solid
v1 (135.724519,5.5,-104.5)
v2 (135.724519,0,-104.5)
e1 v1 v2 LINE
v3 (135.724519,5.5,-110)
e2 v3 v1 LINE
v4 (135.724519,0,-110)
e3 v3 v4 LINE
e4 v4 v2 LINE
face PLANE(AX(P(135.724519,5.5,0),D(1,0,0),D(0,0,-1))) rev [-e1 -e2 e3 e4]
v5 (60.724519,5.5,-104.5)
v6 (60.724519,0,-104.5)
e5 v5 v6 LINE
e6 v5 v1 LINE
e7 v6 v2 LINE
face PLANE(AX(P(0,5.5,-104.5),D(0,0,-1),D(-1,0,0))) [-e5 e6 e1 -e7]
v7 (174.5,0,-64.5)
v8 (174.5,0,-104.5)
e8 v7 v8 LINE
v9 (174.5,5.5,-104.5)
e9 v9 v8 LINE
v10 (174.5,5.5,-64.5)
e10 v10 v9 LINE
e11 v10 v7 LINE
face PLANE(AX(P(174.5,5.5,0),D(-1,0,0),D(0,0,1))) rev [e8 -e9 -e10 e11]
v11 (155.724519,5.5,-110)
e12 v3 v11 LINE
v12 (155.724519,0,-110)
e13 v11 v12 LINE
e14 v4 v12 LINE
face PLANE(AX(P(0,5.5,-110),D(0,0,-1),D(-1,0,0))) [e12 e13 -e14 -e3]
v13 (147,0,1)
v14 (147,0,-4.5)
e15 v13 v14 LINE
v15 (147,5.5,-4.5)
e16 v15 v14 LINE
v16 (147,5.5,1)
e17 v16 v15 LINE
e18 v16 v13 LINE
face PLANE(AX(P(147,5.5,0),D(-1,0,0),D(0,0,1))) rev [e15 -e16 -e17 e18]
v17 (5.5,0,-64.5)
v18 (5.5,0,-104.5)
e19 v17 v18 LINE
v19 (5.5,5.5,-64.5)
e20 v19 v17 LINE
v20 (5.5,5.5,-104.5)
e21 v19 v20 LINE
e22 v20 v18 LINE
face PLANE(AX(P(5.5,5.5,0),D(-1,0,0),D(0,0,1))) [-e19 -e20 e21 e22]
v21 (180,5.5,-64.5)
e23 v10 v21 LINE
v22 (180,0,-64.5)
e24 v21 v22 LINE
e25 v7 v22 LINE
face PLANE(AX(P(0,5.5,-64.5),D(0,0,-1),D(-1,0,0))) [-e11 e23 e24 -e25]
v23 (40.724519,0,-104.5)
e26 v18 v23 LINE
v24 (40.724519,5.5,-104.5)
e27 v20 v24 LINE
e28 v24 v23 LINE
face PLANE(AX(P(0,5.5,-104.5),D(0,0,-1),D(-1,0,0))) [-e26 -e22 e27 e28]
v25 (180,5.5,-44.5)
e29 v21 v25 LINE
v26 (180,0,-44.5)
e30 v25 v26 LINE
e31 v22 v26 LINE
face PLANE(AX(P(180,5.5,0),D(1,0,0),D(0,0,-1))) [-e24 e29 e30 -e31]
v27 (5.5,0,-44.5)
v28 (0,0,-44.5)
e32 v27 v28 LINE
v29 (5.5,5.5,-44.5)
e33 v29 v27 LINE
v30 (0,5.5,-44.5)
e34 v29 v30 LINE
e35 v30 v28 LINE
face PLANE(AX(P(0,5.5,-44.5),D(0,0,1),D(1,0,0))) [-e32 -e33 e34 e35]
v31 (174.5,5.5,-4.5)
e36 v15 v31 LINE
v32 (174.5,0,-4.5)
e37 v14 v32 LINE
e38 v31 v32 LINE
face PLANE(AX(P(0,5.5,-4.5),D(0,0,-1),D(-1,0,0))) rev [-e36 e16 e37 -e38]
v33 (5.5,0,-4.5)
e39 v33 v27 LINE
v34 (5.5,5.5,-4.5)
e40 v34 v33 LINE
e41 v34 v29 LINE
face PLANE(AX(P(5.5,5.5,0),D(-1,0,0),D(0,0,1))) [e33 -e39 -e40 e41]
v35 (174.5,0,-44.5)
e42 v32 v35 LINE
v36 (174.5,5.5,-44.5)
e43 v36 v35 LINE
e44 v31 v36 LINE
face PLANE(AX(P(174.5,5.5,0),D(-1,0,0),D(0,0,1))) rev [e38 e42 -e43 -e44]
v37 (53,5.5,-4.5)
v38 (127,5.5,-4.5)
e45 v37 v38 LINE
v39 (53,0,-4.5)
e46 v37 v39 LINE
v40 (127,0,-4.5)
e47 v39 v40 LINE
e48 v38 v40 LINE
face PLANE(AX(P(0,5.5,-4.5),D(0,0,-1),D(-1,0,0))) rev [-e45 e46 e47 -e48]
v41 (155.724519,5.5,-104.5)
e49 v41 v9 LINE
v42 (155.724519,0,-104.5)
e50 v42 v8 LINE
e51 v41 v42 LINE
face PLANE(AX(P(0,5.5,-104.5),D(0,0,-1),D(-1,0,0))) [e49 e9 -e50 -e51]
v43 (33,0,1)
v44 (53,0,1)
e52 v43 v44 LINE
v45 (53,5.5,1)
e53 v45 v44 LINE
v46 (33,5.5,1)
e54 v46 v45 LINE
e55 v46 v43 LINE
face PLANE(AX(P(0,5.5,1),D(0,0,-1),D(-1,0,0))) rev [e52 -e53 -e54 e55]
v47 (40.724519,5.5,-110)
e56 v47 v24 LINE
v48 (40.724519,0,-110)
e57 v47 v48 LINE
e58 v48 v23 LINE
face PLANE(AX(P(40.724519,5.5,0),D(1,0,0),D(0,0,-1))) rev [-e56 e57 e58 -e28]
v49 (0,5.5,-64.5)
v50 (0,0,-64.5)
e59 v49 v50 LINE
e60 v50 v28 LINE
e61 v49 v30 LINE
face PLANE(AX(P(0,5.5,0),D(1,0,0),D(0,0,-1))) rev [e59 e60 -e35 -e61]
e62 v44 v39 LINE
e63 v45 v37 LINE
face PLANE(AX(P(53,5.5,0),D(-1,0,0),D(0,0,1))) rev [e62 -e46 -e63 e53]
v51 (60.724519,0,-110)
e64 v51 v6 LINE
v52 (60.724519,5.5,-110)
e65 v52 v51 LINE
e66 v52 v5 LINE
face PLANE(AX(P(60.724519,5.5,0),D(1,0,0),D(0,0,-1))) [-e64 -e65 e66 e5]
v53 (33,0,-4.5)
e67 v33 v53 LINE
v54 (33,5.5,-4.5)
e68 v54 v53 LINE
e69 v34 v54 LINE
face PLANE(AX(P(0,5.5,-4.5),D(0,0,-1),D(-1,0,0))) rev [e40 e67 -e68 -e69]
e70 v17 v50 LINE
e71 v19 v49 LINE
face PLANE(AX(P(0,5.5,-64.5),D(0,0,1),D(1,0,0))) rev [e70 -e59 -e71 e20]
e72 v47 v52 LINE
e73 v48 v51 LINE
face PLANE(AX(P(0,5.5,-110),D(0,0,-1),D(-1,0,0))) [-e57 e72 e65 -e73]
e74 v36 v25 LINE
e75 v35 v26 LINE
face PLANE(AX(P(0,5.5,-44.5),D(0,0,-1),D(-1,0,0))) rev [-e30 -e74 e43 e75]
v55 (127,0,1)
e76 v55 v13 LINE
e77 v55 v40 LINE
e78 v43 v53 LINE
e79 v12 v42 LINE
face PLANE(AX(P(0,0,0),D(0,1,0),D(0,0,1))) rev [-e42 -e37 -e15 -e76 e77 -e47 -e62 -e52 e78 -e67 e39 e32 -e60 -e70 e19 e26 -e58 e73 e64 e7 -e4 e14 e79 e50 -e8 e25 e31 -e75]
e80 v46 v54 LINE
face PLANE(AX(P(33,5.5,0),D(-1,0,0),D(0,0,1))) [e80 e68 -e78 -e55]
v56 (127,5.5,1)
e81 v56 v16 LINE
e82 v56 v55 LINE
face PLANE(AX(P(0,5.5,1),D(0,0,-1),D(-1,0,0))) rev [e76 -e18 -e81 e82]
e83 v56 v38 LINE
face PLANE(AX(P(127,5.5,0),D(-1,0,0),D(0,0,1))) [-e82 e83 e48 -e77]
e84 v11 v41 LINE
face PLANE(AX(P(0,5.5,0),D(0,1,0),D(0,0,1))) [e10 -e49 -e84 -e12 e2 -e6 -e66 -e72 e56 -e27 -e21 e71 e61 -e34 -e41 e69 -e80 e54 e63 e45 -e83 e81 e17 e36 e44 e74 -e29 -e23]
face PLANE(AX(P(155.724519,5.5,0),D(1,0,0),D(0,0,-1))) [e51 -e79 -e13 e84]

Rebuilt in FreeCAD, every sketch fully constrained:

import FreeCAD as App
import Part
import Sketcher
from FreeCAD import Vector
Q = App.Units.Quantity

doc = App.newDocument("Part")
params = doc.addObject("Spreadsheet::Sheet", "Params")
for row, (alias, value) in enumerate([
    ("sketch1_width", "20 mm"),
    ("sketch1_width2", "74 mm"),
    ("sketch1_width3", "75 mm"),
    ("sketch1_height", "40 mm"),
    ("sketch1_width4", "5.5 mm"),
    ("pad1_length", "5.5 mm"),
], start=1):
    params.set(f"A{row}", alias)
    params.set(f"B{row}", "=" + value)
    params.setAlias(f"B{row}", alias)

body = doc.addObject("PartDesign::Body", "Body")

# Sketch on XZ plane
sketch1 = body.newObject("Sketcher::SketchObject", "Sketch")
sketch1.AttachmentSupport = (doc.getObject("XZ_Plane"), [""])
sketch1.MapMode = "FlatFace"
sketch1.addGeometry(Part.LineSegment(Vector(41, -104, 0), Vector(6, -104, 0)), False)
sketch1.addGeometry(Part.LineSegment(Vector(6, -104, 0), Vector(6, -64, 0)), False)
sketch1.addGeometry(Part.LineSegment(Vector(6, -64, 0), Vector(0, -64, 0)), False)
sketch1.addGeometry(Part.LineSegment(Vector(0, -64, 0), Vector(0, -44, 0)), False)
sketch1.addGeometry(Part.LineSegment(Vector(0, -44, 0), Vector(6, -44, 0)), False)
sketch1.addGeometry(Part.LineSegment(Vector(6, -44, 0), Vector(6, -4, 0)), False)
sketch1.addGeometry(Part.LineSegment(Vector(6, -4, 0), Vector(33, -4, 0)), False)
sketch1.addGeometry(Part.LineSegment(Vector(33, -4, 0), Vector(33, 1, 0)), False)
sketch1.addGeometry(Part.LineSegment(Vector(33, 1, 0), Vector(53, 1, 0)), False)
sketch1.addGeometry(Part.LineSegment(Vector(53, 1, 0), Vector(53, -4, 0)), False)
sketch1.addGeometry(Part.LineSegment(Vector(53, -4, 0), Vector(127, -4, 0)), False)
sketch1.addGeometry(Part.LineSegment(Vector(127, -4, 0), Vector(127, 1, 0)), False)
sketch1.addGeometry(Part.LineSegment(Vector(127, 1, 0), Vector(147, 1, 0)), False)
sketch1.addGeometry(Part.LineSegment(Vector(147, 1, 0), Vector(147, -4, 0)), False)
sketch1.addGeometry(Part.LineSegment(Vector(147, -4, 0), Vector(174, -4, 0)), False)
sketch1.addGeometry(Part.LineSegment(Vector(174, -4, 0), Vector(174, -44, 0)), False)
sketch1.addGeometry(Part.LineSegment(Vector(174, -44, 0), Vector(180, -44, 0)), False)
sketch1.addGeometry(Part.LineSegment(Vector(180, -44, 0), Vector(180, -64, 0)), False)
sketch1.addGeometry(Part.LineSegment(Vector(180, -64, 0), Vector(174, -64, 0)), False)
sketch1.addGeometry(Part.LineSegment(Vector(174, -64, 0), Vector(174, -104, 0)), False)
sketch1.addGeometry(Part.LineSegment(Vector(174, -104, 0), Vector(156, -104, 0)), False)
sketch1.addGeometry(Part.LineSegment(Vector(156, -104, 0), Vector(156, -110, 0)), False)
sketch1.addGeometry(Part.LineSegment(Vector(156, -110, 0), Vector(136, -110, 0)), False)
sketch1.addGeometry(Part.LineSegment(Vector(136, -110, 0), Vector(136, -104, 0)), False)
sketch1.addGeometry(Part.LineSegment(Vector(136, -104, 0), Vector(61, -104, 0)), False)
sketch1.addGeometry(Part.LineSegment(Vector(61, -104, 0), Vector(61, -110, 0)), False)
sketch1.addGeometry(Part.LineSegment(Vector(61, -110, 0), Vector(41, -110, 0)), False)
sketch1.addGeometry(Part.LineSegment(Vector(41, -110, 0), Vector(41, -104, 0)), False)
sketch1.addConstraint(Sketcher.Constraint("Coincident", 0, 2, 1, 1))
sketch1.addConstraint(Sketcher.Constraint("Coincident", 1, 2, 2, 1))
sketch1.addConstraint(Sketcher.Constraint("Coincident", 2, 2, 3, 1))
sketch1.addConstraint(Sketcher.Constraint("Coincident", 3, 2, 4, 1))
sketch1.addConstraint(Sketcher.Constraint("Coincident", 4, 2, 5, 1))
sketch1.addConstraint(Sketcher.Constraint("Coincident", 5, 2, 6, 1))
sketch1.addConstraint(Sketcher.Constraint("Coincident", 6, 2, 7, 1))
sketch1.addConstraint(Sketcher.Constraint("Coincident", 7, 2, 8, 1))
sketch1.addConstraint(Sketcher.Constraint("Coincident", 8, 2, 9, 1))
sketch1.addConstraint(Sketcher.Constraint("Coincident", 9, 2, 10, 1))
sketch1.addConstraint(Sketcher.Constraint("Coincident", 10, 2, 11, 1))
sketch1.addConstraint(Sketcher.Constraint("Coincident", 11, 2, 12, 1))
sketch1.addConstraint(Sketcher.Constraint("Coincident", 12, 2, 13, 1))
sketch1.addConstraint(Sketcher.Constraint("Coincident", 13, 2, 14, 1))
sketch1.addConstraint(Sketcher.Constraint("Coincident", 14, 2, 15, 1))
sketch1.addConstraint(Sketcher.Constraint("Coincident", 15, 2, 16, 1))
sketch1.addConstraint(Sketcher.Constraint("Coincident", 16, 2, 17, 1))
sketch1.addConstraint(Sketcher.Constraint("Coincident", 17, 2, 18, 1))
sketch1.addConstraint(Sketcher.Constraint("Coincident", 18, 2, 19, 1))
sketch1.addConstraint(Sketcher.Constraint("Coincident", 19, 2, 20, 1))
sketch1.addConstraint(Sketcher.Constraint("Coincident", 20, 2, 21, 1))
sketch1.addConstraint(Sketcher.Constraint("Coincident", 21, 2, 22, 1))
sketch1.addConstraint(Sketcher.Constraint("Coincident", 22, 2, 23, 1))
sketch1.addConstraint(Sketcher.Constraint("Coincident", 23, 2, 24, 1))
sketch1.addConstraint(Sketcher.Constraint("Coincident", 24, 2, 25, 1))
sketch1.addConstraint(Sketcher.Constraint("Coincident", 25, 2, 26, 1))
sketch1.addConstraint(Sketcher.Constraint("Coincident", 26, 2, 27, 1))
sketch1.addConstraint(Sketcher.Constraint("Coincident", 27, 2, 0, 1))
sketch1.addConstraint(Sketcher.Constraint("Horizontal", 0))
sketch1.addConstraint(Sketcher.Constraint("Vertical", 1))
sketch1.addConstraint(Sketcher.Constraint("Horizontal", 2))
sketch1.addConstraint(Sketcher.Constraint("Vertical", 3))
sketch1.addConstraint(Sketcher.Constraint("Horizontal", 4))
sketch1.addConstraint(Sketcher.Constraint("Vertical", 5))
sketch1.addConstraint(Sketcher.Constraint("Horizontal", 6))
sketch1.addConstraint(Sketcher.Constraint("Vertical", 7))
sketch1.addConstraint(Sketcher.Constraint("Horizontal", 8))
sketch1.addConstraint(Sketcher.Constraint("Vertical", 9))
sketch1.addConstraint(Sketcher.Constraint("Horizontal", 10))
sketch1.addConstraint(Sketcher.Constraint("Vertical", 11))
sketch1.addConstraint(Sketcher.Constraint("Horizontal", 12))
sketch1.addConstraint(Sketcher.Constraint("Vertical", 13))
sketch1.addConstraint(Sketcher.Constraint("Horizontal", 14))
sketch1.addConstraint(Sketcher.Constraint("Vertical", 15))
sketch1.addConstraint(Sketcher.Constraint("Horizontal", 16))
sketch1.addConstraint(Sketcher.Constraint("Vertical", 17))
sketch1.addConstraint(Sketcher.Constraint("Horizontal", 18))
sketch1.addConstraint(Sketcher.Constraint("Vertical", 19))
sketch1.addConstraint(Sketcher.Constraint("Horizontal", 20))
sketch1.addConstraint(Sketcher.Constraint("Vertical", 21))
sketch1.addConstraint(Sketcher.Constraint("Horizontal", 22))
sketch1.addConstraint(Sketcher.Constraint("Vertical", 23))
sketch1.addConstraint(Sketcher.Constraint("Horizontal", 24))
sketch1.addConstraint(Sketcher.Constraint("Vertical", 25))
sketch1.addConstraint(Sketcher.Constraint("Horizontal", 26))
sketch1.addConstraint(Sketcher.Constraint("Vertical", 27))
sketch1.addConstraint(Sketcher.Constraint("PointOnObject", 2, 2, -2))
sketch1.addConstraint(Sketcher.Constraint("Horizontal", 6, 2, 9, 2))
sketch1.addConstraint(Sketcher.Constraint("Horizontal", 8, 2, 11, 2))
sketch1.addConstraint(Sketcher.Constraint("Horizontal", 10, 2, 13, 2))
sketch1.addConstraint(Sketcher.Constraint("Horizontal", 4, 2, 15, 2))
sketch1.addConstraint(Sketcher.Constraint("Horizontal", 2, 2, 17, 2))
sketch1.addConstraint(Sketcher.Constraint("Horizontal", 0, 2, 19, 2))
sketch1.addConstraint(Sketcher.Constraint("Horizontal", 20, 2, 23, 2))
sketch1.addConstraint(Sketcher.Constraint("Horizontal", 22, 2, 25, 2))
sketch1.addConstraint(Sketcher.Constraint("Vertical", 1, 2, 4, 2))
sketch1.addConstraint(Sketcher.Constraint("Vertical", 15, 2, 18, 2))
sketch1.addConstraint(Sketcher.Constraint("Equal", 8, 12))
sketch1.addConstraint(Sketcher.Constraint("Equal", 6, 14))
sketch1.addConstraint(Sketcher.Constraint("Equal", 4, 16))
sketch1.addConstraint(Sketcher.Constraint("Equal", 12, 22))
sketch1.addConstraint(Sketcher.Constraint("Equal", 22, 26))
sketch1.addConstraint(Sketcher.Constraint("Equal", 26, 3))
sketch1.addConstraint(Sketcher.Constraint("Equal", 1, 5))
sketch1.addConstraint(Sketcher.Constraint("Equal", 18, 7))
sketch1.addConstraint(Sketcher.Constraint("Equal", 13, 21))
sketch1.addConstraint(Sketcher.Constraint("DistanceX", 8, 1, 8, 2, Q("20 mm")))
sketch1.addConstraint(Sketcher.Constraint("DistanceX", 10, 1, 10, 2, Q("74 mm")))
sketch1.addConstraint(Sketcher.Constraint("DistanceX", 24, 2, 24, 1, Q("75 mm")))
sketch1.addConstraint(Sketcher.Constraint("DistanceY", 1, 1, 1, 2, Q("40 mm")))
sketch1.addConstraint(Sketcher.Constraint("DistanceX", 2, 2, 2, 1, Q("5.5 mm")))
sketch1.addConstraint(Sketcher.Constraint("DistanceX", 6, 1, 6, 2, Q("27.5 mm")))
sketch1.addConstraint(Sketcher.Constraint("DistanceY", -1, 1, 7, 2, Q("1 mm")))
sketch1.addConstraint(Sketcher.Constraint("DistanceX", 0, 2, 0, 1, Q("35.224519 mm")))
sketch1.setExpression("Constraints[76]", "Params.sketch1_width")
sketch1.setExpression("Constraints[77]", "Params.sketch1_width2")
sketch1.setExpression("Constraints[78]", "Params.sketch1_width3")
sketch1.setExpression("Constraints[79]", "Params.sketch1_height")
sketch1.setExpression("Constraints[80]", "Params.sketch1_width4")
pad1 = body.newObject("PartDesign::Pad", "Pad")
pad1.Profile = sketch1
pad1.setExpression("Length", "Params.pad1_length")
pad1.Reversed = True

doc.recompute()
